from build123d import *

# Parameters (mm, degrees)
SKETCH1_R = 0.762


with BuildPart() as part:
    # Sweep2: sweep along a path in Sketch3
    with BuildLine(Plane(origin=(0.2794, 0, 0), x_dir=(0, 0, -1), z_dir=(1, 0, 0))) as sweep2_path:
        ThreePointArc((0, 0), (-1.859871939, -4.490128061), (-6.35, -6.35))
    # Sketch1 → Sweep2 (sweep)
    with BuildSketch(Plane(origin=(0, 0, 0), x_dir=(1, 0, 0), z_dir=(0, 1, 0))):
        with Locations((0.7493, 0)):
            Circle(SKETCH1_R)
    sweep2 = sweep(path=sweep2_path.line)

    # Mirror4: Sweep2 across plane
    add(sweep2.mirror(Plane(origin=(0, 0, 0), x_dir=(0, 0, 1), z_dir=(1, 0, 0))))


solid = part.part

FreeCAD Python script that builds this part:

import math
import FreeCAD as App
import Part
import Sketcher
Q = App.Units.Quantity

doc = App.newDocument("Part")
body = doc.addObject("PartDesign::Body", "Body")

# Sketch on XZ plane
sketch1 = doc.addObject("Sketcher::SketchObject", "Sketch")
body.addObject(sketch1)
sketch1.AttachmentSupport = (doc.XZ_Plane, [""])
sketch1.MapMode = "FlatFace"
sketch1.addGeometry(Part.Circle(App.Vector(0.7, 0, 0), App.Vector(0, 0, 1), 0.8), False)
sketch1.addConstraint([
    Sketcher.Constraint("PointOnObject", 0, 3, -1),
    Sketcher.Constraint("Diameter", 0, Q("0.06 in")),
    Sketcher.Constraint("DistanceX", -1, 1, 0, 3, Q("0.0295 in")),
])

# Sketch on YZ plane
sketch2 = doc.addObject("Sketcher::SketchObject", "Sketch001")
body.addObject(sketch2)
sketch2.AttachmentSupport = (doc.YZ_Plane, [""])
sketch2.MapMode = "FlatFace"
sketch2.AttachmentOffset = App.Placement(App.Vector(0, 0, 0.011 * 25.4), App.Rotation())
sketch2.addGeometry(Part.ArcOfCircle(Part.Circle(App.Vector(0, 6, 0), App.Vector(0, 0, 1), 6), math.radians(180), math.radians(270)), False)
sketch2.addConstraint([
    Sketcher.Constraint("Coincident", 0, 2, -1, 1),
    Sketcher.Constraint("PointOnObject", 0, 3, -2),
    Sketcher.Constraint("Radius", 0, Q("0.25 in")),
    Sketcher.Constraint("DistanceY", -1, 1, 0, 1, Q("0.25 in")),
])
doc.recompute()

additivepipe = doc.addObject("PartDesign::AdditivePipe", "AdditivePipe")
body.addObject(additivepipe)
additivepipe.Profile = sketch1
additivepipe.Spine = (sketch2, ["Edge1"])
doc.recompute()

mirrored = doc.addObject("PartDesign::Mirrored", "Mirrored")
body.addObject(mirrored)
mirrored.Originals = [additivepipe]
mirrored.MirrorPlane = (doc.YZ_Plane, [""])
body.Tip = mirrored

doc.recompute()
